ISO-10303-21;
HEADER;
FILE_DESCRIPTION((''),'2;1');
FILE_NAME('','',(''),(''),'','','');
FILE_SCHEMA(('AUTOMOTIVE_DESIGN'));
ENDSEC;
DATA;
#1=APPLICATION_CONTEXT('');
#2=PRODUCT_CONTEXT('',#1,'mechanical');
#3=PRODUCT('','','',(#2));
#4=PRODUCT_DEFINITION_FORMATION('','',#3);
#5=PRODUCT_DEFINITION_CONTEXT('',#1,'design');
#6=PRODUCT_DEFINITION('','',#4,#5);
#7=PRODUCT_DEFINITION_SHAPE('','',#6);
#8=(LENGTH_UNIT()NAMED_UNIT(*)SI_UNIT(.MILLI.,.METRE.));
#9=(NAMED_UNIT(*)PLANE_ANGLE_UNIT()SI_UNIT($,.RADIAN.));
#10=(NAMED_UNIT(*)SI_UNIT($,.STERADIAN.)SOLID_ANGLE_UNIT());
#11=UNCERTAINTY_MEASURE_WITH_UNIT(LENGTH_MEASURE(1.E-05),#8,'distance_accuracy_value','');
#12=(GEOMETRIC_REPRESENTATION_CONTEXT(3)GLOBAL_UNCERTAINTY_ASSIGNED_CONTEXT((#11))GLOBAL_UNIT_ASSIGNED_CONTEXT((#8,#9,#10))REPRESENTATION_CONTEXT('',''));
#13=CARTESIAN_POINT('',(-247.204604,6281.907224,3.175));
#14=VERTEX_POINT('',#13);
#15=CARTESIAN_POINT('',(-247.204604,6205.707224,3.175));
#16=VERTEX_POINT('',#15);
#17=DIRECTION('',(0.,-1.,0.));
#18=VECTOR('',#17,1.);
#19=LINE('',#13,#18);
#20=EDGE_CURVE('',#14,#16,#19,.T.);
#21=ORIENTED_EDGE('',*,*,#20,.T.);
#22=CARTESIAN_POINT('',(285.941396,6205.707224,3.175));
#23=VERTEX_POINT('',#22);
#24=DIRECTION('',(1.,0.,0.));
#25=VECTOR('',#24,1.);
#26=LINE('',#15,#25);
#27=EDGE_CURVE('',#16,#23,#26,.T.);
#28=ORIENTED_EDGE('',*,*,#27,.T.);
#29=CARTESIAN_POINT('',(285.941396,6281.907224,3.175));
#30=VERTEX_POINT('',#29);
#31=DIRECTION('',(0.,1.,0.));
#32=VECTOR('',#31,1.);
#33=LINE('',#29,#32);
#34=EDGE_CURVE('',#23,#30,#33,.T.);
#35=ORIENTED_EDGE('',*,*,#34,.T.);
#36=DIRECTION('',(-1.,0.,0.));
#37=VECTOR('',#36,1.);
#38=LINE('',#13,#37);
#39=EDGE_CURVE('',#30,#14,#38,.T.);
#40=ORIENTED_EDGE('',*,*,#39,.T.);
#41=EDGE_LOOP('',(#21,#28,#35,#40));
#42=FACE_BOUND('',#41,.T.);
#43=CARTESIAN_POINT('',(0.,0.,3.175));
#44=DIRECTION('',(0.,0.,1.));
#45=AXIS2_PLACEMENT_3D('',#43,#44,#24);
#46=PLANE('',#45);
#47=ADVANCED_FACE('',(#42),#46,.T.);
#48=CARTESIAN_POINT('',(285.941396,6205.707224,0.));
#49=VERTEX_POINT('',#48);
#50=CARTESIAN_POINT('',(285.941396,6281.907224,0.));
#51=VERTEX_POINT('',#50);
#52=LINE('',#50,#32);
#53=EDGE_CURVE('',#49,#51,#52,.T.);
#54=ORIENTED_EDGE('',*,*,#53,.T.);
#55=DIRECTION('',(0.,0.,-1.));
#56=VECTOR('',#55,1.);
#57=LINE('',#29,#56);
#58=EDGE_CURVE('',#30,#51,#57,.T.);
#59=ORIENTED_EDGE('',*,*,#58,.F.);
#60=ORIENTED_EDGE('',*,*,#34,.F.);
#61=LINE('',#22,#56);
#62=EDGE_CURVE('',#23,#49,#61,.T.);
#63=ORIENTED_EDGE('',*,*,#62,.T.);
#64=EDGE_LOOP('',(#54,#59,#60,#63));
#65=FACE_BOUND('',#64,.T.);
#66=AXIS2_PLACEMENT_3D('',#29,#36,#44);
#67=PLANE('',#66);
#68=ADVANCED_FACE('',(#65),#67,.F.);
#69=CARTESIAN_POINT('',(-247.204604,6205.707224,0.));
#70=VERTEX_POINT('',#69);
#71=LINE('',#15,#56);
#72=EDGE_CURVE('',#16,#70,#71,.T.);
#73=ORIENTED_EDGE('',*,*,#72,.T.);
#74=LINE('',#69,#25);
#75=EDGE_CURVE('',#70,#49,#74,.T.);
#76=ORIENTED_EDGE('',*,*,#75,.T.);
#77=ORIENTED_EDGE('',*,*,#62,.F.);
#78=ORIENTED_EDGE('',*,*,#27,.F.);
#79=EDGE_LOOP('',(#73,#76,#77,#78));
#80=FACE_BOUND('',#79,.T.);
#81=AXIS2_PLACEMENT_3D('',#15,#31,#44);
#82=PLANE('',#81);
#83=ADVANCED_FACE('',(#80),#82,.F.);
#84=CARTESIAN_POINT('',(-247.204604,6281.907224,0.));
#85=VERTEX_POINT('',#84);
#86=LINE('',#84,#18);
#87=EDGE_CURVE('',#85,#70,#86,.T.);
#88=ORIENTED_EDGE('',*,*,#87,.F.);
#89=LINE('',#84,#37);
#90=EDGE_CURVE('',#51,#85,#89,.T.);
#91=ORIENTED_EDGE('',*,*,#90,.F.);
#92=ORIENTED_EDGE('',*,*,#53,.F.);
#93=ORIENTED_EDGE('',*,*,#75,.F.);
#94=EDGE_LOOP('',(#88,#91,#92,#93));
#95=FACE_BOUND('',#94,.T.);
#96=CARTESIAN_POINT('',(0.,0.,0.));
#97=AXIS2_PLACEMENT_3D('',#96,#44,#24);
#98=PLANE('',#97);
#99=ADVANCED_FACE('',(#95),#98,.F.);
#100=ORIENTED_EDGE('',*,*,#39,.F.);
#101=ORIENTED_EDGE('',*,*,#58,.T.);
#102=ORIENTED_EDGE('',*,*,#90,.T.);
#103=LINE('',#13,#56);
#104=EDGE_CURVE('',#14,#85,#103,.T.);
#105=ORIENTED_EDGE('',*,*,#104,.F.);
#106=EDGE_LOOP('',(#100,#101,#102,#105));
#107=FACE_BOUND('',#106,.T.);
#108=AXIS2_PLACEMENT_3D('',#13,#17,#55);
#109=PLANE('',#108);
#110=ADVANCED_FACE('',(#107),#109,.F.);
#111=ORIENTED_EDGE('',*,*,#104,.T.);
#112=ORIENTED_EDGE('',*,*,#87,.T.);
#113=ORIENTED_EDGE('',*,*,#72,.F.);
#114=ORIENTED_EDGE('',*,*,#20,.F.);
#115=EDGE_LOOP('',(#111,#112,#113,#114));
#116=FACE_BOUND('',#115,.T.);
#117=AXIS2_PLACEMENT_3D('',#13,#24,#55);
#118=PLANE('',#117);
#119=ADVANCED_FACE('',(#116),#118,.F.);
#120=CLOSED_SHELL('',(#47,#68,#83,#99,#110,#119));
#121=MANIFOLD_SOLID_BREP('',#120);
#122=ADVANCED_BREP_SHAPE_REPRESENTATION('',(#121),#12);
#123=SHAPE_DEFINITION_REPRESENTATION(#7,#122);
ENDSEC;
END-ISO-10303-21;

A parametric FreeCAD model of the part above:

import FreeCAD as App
import Part
import Sketcher
from FreeCAD import Vector
Q = App.Units.Quantity


def add_polygon(sketch, points):
    """Adds a closed chain of lines whose ends are joined by coincident constraints."""
    first, n = sketch.GeometryCount, len(points)
    for a, b in zip(points, points[1:] + points[:1]):
        sketch.addGeometry(Part.LineSegment(App.Vector(*a, 0), App.Vector(*b, 0)), False)
    for i in range(n):
        sketch.addConstraint(Sketcher.Constraint("Coincident", first + i, 2, first + (i + 1) % n, 1))

doc = App.newDocument("Part")
body = doc.addObject("PartDesign::Body", "Body")

sketch1 = body.newObject("Sketcher::SketchObject", "Sketch")
sketch1.AttachmentSupport = (doc.getObject("XY_Plane"), [""])
sketch1.MapMode = "FlatFace"
add_polygon(sketch1, [(-247, 6282), (-247, 6206), (286, 6206), (286, 6282)])
sketch1.addConstraint([
    Sketcher.Constraint("Vertical", 0),
    Sketcher.Constraint("Horizontal", 1),
    Sketcher.Constraint("Vertical", 2),
    Sketcher.Constraint("Horizontal", 3),
    Sketcher.Constraint("DistanceY", 0, 2, 0, 1, Q("3 in")),
    Sketcher.Constraint("DistanceX", 1, 1, 1, 2, Q("20.99 in")),
    Sketcher.Constraint("DistanceX", 0, 2, -1, 1, Q("247.204604 mm")),
    Sketcher.Constraint("DistanceY", -1, 1, 0, 2, Q("6205.707224 mm")),
])
pad1 = body.newObject("PartDesign::Pad", "Pad")
pad1.Profile = sketch1
pad1.Length = Q("0.125 in")

doc.recompute()
